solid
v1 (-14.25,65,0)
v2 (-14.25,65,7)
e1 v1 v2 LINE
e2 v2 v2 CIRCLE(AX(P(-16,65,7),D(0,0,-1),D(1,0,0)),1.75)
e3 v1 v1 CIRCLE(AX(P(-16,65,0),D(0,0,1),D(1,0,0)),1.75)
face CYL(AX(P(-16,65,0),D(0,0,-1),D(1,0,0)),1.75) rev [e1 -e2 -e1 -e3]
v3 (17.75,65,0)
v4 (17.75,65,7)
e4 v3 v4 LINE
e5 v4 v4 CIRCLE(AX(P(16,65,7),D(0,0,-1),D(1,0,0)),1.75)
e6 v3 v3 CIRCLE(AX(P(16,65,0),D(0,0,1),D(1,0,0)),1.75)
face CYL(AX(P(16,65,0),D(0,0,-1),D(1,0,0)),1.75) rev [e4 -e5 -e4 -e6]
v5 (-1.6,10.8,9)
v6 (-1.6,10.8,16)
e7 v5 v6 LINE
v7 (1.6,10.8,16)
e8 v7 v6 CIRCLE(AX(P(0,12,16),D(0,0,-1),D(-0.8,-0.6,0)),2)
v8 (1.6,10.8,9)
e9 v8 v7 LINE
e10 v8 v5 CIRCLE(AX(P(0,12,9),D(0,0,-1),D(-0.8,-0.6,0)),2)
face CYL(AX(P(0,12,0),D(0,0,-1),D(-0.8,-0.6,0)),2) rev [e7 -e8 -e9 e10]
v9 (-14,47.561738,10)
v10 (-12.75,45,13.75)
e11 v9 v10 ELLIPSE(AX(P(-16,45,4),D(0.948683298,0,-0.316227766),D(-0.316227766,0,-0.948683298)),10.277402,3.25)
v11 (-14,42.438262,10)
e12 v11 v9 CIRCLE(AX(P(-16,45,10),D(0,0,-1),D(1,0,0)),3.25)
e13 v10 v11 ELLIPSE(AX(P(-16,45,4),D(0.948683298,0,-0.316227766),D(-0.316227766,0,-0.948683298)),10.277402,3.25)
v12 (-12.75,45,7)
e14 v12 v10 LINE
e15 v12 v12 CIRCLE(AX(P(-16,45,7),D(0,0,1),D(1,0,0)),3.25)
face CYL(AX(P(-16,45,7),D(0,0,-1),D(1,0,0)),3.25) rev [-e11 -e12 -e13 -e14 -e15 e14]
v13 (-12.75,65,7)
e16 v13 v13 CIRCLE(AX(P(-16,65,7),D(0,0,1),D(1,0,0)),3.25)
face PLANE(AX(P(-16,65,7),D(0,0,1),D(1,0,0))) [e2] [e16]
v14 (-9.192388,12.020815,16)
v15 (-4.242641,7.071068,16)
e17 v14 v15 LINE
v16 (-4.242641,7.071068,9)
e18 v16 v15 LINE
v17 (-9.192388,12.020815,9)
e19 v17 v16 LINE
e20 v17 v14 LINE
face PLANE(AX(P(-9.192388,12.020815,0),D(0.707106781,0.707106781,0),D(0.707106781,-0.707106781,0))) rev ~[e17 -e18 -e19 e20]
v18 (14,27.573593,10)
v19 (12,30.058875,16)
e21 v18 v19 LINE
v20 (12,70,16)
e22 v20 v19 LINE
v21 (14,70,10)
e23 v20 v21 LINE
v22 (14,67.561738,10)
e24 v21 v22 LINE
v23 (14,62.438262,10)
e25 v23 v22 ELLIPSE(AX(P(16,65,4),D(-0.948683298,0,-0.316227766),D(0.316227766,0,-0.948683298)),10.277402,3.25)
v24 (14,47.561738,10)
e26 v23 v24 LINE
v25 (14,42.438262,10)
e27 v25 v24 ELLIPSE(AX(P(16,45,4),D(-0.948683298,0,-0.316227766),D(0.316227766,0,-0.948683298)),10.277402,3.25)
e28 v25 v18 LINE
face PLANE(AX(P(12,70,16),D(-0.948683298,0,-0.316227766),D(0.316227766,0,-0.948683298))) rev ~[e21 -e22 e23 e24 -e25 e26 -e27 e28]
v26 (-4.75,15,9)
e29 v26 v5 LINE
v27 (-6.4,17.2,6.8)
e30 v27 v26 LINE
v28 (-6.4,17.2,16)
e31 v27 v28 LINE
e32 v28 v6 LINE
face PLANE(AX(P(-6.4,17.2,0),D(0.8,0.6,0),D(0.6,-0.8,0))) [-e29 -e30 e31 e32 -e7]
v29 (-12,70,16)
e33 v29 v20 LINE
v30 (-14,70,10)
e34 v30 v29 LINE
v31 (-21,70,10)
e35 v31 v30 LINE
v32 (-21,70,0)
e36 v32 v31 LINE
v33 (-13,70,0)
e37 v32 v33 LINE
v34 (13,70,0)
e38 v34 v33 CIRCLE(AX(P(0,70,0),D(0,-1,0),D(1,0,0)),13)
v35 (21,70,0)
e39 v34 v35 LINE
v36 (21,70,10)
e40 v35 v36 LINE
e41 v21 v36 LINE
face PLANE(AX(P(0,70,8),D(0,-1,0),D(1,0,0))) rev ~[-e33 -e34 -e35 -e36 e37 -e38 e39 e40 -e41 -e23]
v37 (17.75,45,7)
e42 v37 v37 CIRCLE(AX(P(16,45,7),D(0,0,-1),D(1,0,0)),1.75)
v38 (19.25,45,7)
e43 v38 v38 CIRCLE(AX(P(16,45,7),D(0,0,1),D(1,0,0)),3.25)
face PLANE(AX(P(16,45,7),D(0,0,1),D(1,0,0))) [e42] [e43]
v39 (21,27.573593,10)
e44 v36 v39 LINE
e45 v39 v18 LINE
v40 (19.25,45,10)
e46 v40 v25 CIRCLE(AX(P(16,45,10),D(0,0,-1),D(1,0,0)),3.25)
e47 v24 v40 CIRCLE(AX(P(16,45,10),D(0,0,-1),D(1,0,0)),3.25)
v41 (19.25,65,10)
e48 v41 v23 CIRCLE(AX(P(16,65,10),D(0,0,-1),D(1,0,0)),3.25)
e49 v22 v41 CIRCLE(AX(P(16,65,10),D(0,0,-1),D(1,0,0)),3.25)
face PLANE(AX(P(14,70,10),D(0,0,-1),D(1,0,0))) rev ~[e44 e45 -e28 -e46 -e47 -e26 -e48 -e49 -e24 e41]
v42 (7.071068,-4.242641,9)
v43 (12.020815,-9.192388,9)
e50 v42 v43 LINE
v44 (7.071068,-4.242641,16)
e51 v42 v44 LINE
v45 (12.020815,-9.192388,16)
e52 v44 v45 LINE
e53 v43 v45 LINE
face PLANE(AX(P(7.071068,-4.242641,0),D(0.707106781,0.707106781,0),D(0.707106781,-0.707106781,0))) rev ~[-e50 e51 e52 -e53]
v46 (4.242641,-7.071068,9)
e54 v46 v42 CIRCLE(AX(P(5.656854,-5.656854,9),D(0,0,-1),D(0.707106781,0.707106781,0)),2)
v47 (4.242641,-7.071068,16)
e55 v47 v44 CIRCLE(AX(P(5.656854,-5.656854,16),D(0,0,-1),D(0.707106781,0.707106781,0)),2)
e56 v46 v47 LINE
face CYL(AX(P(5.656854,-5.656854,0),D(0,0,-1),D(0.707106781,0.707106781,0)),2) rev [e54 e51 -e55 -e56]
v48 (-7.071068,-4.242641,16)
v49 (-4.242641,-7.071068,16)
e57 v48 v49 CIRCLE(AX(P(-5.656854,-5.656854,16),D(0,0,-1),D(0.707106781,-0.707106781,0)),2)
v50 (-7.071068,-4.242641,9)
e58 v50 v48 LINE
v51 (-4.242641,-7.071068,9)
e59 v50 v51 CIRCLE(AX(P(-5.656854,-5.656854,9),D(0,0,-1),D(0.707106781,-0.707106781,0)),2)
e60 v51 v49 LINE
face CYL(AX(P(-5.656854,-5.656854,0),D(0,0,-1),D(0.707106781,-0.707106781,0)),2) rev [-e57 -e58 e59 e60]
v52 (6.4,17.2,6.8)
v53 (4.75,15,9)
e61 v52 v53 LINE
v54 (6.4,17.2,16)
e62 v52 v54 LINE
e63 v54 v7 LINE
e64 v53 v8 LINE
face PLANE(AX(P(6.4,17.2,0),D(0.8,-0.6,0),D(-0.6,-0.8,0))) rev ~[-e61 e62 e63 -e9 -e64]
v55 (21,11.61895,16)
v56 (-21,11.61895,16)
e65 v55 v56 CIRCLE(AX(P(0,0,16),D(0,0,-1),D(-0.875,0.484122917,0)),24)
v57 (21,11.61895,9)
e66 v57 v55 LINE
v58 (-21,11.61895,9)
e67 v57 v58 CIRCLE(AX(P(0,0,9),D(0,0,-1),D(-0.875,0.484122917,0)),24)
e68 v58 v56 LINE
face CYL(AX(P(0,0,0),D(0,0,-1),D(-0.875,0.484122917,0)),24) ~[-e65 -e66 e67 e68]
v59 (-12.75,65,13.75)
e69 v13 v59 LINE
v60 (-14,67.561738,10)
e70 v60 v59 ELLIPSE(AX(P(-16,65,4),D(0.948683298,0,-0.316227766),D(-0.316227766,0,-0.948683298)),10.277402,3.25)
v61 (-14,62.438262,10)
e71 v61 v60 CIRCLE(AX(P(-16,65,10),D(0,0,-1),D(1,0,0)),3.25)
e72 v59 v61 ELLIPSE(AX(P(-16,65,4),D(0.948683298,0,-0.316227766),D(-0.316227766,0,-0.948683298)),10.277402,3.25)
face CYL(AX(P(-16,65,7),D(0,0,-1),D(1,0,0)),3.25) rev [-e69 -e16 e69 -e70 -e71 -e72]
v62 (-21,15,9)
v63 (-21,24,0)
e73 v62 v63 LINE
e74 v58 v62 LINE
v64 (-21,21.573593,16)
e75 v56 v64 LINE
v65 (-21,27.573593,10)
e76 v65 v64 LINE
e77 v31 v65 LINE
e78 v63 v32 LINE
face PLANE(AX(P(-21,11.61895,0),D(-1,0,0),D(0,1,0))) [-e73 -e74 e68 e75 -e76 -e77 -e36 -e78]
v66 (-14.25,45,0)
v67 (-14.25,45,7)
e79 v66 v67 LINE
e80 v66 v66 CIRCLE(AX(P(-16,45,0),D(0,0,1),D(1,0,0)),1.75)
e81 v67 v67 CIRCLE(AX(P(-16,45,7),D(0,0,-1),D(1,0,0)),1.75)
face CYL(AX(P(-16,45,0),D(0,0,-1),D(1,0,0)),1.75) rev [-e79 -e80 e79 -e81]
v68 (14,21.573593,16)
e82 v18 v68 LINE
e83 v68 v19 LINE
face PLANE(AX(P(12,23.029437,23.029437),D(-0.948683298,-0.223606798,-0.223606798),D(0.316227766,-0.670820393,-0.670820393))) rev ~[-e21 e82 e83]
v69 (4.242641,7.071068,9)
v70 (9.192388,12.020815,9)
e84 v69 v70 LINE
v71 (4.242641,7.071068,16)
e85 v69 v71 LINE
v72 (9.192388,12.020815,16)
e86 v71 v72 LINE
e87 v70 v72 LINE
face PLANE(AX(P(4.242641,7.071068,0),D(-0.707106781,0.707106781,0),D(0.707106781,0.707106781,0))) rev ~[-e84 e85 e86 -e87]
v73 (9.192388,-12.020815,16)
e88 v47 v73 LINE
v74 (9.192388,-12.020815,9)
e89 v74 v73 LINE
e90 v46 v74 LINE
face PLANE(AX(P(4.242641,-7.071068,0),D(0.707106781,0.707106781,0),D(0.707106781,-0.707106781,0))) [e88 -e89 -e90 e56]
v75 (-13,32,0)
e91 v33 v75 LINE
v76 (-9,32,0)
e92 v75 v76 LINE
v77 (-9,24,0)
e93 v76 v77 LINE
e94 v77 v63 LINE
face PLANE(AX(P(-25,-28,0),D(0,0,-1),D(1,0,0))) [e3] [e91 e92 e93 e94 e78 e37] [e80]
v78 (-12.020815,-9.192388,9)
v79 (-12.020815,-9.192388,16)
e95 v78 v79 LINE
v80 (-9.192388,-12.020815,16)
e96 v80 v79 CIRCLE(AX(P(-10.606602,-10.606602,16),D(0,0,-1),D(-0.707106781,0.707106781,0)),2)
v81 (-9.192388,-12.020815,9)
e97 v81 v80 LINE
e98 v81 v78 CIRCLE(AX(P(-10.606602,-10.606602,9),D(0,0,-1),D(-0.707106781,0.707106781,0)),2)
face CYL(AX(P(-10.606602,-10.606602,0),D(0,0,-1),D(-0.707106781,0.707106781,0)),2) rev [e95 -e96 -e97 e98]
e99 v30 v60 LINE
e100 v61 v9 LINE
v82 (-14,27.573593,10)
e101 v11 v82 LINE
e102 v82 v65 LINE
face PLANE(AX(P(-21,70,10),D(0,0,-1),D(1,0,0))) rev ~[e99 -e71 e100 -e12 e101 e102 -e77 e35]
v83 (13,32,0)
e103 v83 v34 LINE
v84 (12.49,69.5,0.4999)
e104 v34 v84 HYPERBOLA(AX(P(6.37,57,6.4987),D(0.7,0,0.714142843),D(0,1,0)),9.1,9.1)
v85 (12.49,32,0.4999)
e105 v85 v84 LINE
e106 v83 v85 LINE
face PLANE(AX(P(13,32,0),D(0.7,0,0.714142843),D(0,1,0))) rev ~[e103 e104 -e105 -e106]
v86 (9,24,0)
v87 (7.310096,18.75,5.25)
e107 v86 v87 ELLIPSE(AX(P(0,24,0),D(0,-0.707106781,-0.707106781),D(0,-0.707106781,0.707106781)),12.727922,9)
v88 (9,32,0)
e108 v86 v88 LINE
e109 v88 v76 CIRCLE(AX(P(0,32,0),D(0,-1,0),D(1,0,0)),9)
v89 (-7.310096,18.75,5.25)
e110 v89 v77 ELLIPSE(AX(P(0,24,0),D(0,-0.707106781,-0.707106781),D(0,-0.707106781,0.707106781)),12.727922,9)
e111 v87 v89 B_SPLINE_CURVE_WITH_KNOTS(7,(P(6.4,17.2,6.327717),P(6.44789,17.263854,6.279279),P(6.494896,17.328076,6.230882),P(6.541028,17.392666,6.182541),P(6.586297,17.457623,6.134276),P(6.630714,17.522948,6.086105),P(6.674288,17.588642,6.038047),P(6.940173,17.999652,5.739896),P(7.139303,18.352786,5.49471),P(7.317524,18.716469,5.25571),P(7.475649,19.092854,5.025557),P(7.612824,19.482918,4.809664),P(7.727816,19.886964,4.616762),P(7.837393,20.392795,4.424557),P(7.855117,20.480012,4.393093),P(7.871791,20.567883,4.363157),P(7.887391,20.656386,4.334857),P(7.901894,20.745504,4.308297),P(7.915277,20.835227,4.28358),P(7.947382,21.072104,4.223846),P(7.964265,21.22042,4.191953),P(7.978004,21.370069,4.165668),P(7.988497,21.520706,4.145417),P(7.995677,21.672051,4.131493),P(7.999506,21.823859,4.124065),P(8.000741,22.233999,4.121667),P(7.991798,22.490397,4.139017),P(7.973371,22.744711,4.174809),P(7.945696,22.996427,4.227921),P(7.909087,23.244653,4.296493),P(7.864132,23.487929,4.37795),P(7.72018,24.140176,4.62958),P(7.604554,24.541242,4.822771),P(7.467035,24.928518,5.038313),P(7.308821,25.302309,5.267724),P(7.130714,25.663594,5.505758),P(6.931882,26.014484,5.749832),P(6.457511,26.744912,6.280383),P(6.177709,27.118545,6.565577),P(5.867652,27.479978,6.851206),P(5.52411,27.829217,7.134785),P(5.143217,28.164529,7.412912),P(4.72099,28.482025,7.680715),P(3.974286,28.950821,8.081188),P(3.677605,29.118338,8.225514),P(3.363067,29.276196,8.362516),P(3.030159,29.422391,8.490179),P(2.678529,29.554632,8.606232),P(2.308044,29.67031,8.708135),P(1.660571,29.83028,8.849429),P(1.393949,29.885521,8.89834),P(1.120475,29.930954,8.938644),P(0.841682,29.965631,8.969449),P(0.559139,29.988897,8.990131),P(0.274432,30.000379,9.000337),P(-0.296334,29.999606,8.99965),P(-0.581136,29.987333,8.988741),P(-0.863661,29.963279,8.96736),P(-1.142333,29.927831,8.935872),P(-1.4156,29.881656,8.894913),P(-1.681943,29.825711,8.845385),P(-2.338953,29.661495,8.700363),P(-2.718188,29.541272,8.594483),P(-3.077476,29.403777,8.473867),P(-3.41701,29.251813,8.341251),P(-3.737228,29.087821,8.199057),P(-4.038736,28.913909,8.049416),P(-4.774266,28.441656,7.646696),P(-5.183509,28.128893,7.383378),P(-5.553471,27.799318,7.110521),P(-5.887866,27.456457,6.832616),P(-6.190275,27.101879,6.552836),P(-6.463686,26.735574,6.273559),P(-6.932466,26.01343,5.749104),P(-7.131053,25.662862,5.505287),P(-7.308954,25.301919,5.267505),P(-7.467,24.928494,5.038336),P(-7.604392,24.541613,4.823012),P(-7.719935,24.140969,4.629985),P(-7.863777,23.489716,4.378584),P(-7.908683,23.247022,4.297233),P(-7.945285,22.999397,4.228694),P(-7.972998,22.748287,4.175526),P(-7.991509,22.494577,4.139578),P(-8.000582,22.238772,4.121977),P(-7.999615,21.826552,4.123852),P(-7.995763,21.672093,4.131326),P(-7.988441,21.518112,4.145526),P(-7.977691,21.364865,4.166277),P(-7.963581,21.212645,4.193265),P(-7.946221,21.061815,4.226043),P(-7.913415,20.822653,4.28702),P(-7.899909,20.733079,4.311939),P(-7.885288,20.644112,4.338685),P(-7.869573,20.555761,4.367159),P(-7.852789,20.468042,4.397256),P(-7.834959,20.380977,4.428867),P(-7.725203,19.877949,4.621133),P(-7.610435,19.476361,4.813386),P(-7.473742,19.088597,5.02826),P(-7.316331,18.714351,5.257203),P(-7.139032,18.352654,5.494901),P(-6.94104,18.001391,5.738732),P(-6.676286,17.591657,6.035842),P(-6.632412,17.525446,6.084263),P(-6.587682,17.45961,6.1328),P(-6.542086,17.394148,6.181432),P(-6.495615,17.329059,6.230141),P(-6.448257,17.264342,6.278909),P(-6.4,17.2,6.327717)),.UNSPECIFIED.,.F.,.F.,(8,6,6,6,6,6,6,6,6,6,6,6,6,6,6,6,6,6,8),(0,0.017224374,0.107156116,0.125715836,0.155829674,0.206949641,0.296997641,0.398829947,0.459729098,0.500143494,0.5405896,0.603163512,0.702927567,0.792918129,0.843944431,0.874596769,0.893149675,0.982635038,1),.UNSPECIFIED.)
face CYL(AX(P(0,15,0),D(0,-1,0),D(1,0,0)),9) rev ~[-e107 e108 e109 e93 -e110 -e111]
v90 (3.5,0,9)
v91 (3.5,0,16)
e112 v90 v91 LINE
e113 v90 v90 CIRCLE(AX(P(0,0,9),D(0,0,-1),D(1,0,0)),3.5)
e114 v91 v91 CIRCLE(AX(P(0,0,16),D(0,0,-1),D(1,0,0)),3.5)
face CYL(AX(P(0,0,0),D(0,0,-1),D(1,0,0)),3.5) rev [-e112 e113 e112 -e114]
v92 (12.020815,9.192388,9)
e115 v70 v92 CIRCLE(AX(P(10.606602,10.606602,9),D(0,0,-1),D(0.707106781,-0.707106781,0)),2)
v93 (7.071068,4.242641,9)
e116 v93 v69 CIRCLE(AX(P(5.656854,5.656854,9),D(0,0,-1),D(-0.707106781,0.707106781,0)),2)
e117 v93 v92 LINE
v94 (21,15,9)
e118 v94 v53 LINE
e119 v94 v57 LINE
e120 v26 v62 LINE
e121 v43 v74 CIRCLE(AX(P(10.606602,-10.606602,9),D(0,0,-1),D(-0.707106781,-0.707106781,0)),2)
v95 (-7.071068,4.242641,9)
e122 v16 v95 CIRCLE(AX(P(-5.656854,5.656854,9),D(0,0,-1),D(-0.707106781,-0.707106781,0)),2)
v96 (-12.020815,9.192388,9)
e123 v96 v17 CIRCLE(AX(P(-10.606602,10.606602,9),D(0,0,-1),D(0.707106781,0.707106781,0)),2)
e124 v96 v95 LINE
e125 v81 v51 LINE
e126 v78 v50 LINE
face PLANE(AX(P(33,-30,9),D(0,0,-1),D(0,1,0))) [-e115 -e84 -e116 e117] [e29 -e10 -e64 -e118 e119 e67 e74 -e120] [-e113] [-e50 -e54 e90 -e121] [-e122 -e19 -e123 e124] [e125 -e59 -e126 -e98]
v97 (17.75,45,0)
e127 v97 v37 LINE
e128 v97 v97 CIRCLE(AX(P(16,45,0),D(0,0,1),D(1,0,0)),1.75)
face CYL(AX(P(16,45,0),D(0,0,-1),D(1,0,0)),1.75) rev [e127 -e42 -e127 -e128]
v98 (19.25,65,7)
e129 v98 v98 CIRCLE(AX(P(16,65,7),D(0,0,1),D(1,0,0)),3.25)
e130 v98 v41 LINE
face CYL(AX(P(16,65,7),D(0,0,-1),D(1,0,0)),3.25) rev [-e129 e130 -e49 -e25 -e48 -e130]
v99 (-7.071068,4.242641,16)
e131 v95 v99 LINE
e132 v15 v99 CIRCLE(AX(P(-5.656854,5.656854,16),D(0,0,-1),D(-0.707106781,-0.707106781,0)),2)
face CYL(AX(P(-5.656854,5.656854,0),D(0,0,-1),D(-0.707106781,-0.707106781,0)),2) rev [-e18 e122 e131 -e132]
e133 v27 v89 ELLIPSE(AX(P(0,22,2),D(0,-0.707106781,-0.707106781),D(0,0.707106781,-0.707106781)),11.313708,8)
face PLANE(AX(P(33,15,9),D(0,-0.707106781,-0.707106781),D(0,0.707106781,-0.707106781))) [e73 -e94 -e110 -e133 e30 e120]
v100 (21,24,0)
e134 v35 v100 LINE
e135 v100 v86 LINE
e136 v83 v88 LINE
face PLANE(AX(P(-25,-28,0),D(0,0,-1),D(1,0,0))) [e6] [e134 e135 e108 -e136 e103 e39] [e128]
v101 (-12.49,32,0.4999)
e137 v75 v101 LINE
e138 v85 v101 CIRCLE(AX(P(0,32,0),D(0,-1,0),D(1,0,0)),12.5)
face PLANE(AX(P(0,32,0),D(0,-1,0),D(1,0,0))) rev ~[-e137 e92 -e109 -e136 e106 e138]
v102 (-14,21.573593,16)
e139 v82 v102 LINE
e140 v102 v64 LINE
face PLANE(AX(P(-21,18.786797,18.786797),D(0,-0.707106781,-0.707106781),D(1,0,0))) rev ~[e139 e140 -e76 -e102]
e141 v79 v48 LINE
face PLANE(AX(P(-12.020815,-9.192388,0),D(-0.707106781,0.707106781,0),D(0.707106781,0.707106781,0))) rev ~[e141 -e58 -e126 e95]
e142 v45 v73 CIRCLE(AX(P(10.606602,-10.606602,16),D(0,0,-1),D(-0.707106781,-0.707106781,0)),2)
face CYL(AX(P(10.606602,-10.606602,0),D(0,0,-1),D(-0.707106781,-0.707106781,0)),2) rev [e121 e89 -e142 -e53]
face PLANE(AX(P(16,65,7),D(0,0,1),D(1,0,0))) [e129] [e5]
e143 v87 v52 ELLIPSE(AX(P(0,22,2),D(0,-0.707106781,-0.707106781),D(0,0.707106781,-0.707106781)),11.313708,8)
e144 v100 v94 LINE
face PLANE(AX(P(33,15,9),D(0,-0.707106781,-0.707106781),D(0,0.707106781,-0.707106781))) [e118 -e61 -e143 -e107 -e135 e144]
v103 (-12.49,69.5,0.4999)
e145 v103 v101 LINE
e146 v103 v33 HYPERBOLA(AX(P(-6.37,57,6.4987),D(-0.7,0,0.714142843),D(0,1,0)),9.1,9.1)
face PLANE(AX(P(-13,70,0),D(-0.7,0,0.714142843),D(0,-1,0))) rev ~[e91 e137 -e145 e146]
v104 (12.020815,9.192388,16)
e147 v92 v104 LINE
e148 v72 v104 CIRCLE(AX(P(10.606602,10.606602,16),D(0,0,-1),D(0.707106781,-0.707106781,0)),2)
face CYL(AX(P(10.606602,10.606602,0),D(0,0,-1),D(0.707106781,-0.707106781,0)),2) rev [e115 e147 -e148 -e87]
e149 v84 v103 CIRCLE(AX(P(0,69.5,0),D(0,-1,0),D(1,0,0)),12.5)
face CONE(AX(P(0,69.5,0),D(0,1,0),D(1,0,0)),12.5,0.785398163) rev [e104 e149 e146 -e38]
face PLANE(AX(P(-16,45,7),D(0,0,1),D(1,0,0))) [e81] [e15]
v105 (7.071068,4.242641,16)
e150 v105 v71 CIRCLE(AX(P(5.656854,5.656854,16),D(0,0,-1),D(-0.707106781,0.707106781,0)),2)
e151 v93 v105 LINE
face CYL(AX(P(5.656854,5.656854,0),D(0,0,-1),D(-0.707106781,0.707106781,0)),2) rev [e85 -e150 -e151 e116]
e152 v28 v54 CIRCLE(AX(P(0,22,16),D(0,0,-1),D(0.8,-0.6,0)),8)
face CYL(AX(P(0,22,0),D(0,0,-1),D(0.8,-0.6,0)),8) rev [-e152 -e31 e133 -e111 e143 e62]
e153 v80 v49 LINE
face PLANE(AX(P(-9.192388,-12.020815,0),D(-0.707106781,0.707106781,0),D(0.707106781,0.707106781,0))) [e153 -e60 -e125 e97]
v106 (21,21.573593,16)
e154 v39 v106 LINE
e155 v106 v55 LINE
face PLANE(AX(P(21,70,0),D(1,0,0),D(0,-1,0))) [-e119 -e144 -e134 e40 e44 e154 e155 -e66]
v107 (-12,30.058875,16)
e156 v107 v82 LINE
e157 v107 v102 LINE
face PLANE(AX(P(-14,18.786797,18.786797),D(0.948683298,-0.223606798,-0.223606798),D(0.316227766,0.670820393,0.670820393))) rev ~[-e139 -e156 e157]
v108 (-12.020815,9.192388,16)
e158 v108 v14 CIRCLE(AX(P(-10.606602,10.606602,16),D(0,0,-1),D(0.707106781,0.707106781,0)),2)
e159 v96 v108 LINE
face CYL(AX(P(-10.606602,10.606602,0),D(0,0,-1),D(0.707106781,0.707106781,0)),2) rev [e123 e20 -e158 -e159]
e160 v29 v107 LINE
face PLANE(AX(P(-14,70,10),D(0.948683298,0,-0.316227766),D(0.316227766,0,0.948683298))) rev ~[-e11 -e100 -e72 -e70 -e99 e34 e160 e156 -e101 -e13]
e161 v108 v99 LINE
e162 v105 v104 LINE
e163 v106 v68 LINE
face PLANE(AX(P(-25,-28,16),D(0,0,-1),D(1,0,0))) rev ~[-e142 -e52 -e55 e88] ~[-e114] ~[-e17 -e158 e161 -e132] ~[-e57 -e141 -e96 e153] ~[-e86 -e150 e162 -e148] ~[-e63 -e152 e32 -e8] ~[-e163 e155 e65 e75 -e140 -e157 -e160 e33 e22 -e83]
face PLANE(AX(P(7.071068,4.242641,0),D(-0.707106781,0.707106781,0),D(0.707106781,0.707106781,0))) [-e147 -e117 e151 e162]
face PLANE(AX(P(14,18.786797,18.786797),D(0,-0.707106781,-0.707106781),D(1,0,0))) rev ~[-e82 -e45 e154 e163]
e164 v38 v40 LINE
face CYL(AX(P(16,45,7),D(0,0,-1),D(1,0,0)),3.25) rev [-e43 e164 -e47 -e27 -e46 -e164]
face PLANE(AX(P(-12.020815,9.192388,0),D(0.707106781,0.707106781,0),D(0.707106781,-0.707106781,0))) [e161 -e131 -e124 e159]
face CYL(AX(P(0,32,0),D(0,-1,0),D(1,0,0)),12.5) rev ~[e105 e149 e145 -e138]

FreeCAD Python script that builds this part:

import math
import FreeCAD as App
import Part
import Sketcher
Q = App.Units.Quantity


def edges_at(feature, points):
    """Names of the edges that pass closest to the given points."""
    edges = feature.Shape.Edges
    near = lambda p: min(range(len(edges)), key=lambda i: edges[i].distToShape(Part.Vertex(*p))[0])
    return sorted({f"Edge{near(p) + 1}" for p in points})

doc = App.newDocument("Part")
body = doc.addObject("PartDesign::Body", "Body")
body.AllowCompound = True

# Sketch on XY plane
sketch1 = body.newObject("Sketcher::SketchObject", "Sketch")
sketch1.AttachmentSupport = (doc.getObject("XY_Plane"), [""])
sketch1.MapMode = "FlatFace"
sketch1.addGeometry(Part.Circle(App.Vector(-16, 45, 0), App.Vector(0, 0, 1), 3.2), False)
sketch1.addGeometry(Part.Circle(App.Vector(16, 45, 0), App.Vector(0, 0, 1), 3.2), False)
sketch1.addGeometry(Part.Circle(App.Vector(-16, 65, 0), App.Vector(0, 0, 1), 3.2), False)
sketch1.addGeometry(Part.Circle(App.Vector(16, 65, 0), App.Vector(0, 0, 1), 3.2), False)
sketch1.addConstraint(Sketcher.Constraint("Equal", 0, 1))
sketch1.addConstraint(Sketcher.Constraint("Equal", 1, 2))
sketch1.addConstraint(Sketcher.Constraint("Equal", 2, 3))
sketch1.addConstraint(Sketcher.Constraint("Symmetric", 0, 3, 1, 3, -2))
sketch1.addConstraint(Sketcher.Constraint("Symmetric", 2, 3, 3, 3, -2))
sketch1.addConstraint(Sketcher.Constraint("Vertical", 0, 3, 2, 3))
sketch1.addConstraint(Sketcher.Constraint("Diameter", 0, 6.5))
sketch1.addConstraint(Sketcher.Constraint("DistanceX", 0, 3, -1, 1, 16.0))
sketch1.addConstraint(Sketcher.Constraint("DistanceY", -1, 1, 0, 3, 45.0))
sketch1.addConstraint(Sketcher.Constraint("DistanceY", -1, 1, 2, 3, 65.0))
pad1 = body.newObject("PartDesign::Pad", "Pad")
pad1.Profile = sketch1
pad1.Length = 10
body2 = doc.addObject("PartDesign::Body", "Body001")
body2.AllowCompound = True
doc.recompute()

body.Placement = App.Placement(App.Vector(0, 0, 7), App.Rotation(App.Vector(0, 0, 1), 0))
boolean = body2.newObject("PartDesign::Boolean", "Boolean")
boolean.Type = "Fuse"
boolean.addObjects([body])
body3 = doc.addObject("PartDesign::Body", "Body002")

# Sketch on XY plane
sketch2 = body3.newObject("Sketcher::SketchObject", "Sketch001")
sketch2.AttachmentSupport = (doc.getObject("XY_Plane002"), [""])
sketch2.MapMode = "FlatFace"
sketch2.addGeometry(Part.Circle(App.Vector(0, 0, 0), App.Vector(0, 0, 1), 9), False)
sketch2.addConstraint(Sketcher.Constraint("Coincident", 0, 3, -1, 1))
sketch2.addConstraint(Sketcher.Constraint("Diameter", 0, 18.0))
pad2 = body3.newObject("PartDesign::Pad", "Pad001")
pad2.Profile = sketch2
pad2.Length = 27
pad2.Reversed = True
body4 = doc.addObject("PartDesign::Body", "Body003")
doc.recompute()

body3.Placement = App.Placement(App.Vector(0, 0, 0), App.Rotation(App.Vector(1, 0, 0), 90))
boolean2 = body4.newObject("PartDesign::Boolean", "Boolean001")
boolean2.Type = "Fuse"
boolean2.addObjects([body3])
body5 = doc.addObject("PartDesign::Body", "Body004")
doc.recompute()

body4.Placement = App.Placement(App.Vector(0, 33, 0), App.Rotation(App.Vector(0, 0, 1), 0))
boolean3 = body5.newObject("PartDesign::Boolean", "Boolean002")
boolean3.Type = "Fuse"
boolean3.addObjects([body4])
body6 = doc.addObject("PartDesign::Body", "Body005")
doc.recompute()

body5.Placement = App.Placement(App.Vector(0, -18, 0), App.Rotation(App.Vector(0, 0, 1), 0))
boolean4 = body6.newObject("PartDesign::Boolean", "Boolean003")
boolean4.Type = "Fuse"
boolean4.addObjects([body5])
body7 = doc.addObject("PartDesign::Body", "Body006")

# Sketch on XZ plane
sketch3 = body7.newObject("Sketcher::SketchObject", "Sketch002")
sketch3.AttachmentSupport = (doc.getObject("XZ_Plane006"), [""])
sketch3.MapMode = "FlatFace"
sketch3.AttachmentOffset = App.Placement(App.Vector(0, 0, -70), App.Rotation())
sketch3.addGeometry(Part.LineSegment(App.Vector(-12, 16, 0), App.Vector(12, 16, 0)), False)
sketch3.addGeometry(Part.LineSegment(App.Vector(12, 16, 0), App.Vector(14, 10, 0)), False)
sketch3.addGeometry(Part.LineSegment(App.Vector(14, 10, 0), App.Vector(21, 10, 0)), False)
sketch3.addGeometry(Part.LineSegment(App.Vector(21, 10, 0), App.Vector(21, 28, 0)), False)
sketch3.addGeometry(Part.LineSegment(App.Vector(21, 28, 0), App.Vector(-21, 28, 0)), False)
sketch3.addGeometry(Part.LineSegment(App.Vector(-21, 28, 0), App.Vector(-21, 10, 0)), False)
sketch3.addGeometry(Part.LineSegment(App.Vector(-21, 10, 0), App.Vector(-14, 10, 0)), False)
sketch3.addGeometry(Part.LineSegment(App.Vector(-14, 10, 0), App.Vector(-12, 16, 0)), False)
sketch3.addConstraint(Sketcher.Constraint("Coincident", 0, 2, 1, 1))
sketch3.addConstraint(Sketcher.Constraint("Coincident", 1, 2, 2, 1))
sketch3.addConstraint(Sketcher.Constraint("Coincident", 2, 2, 3, 1))
sketch3.addConstraint(Sketcher.Constraint("Coincident", 3, 2, 4, 1))
sketch3.addConstraint(Sketcher.Constraint("Coincident", 4, 2, 5, 1))
sketch3.addConstraint(Sketcher.Constraint("Coincident", 5, 2, 6, 1))
sketch3.addConstraint(Sketcher.Constraint("Coincident", 6, 2, 7, 1))
sketch3.addConstraint(Sketcher.Constraint("Coincident", 7, 2, 0, 1))
sketch3.addConstraint(Sketcher.Constraint("Horizontal", 0))
sketch3.addConstraint(Sketcher.Constraint("Horizontal", 2))
sketch3.addConstraint(Sketcher.Constraint("Vertical", 3))
sketch3.addConstraint(Sketcher.Constraint("Horizontal", 4))
sketch3.addConstraint(Sketcher.Constraint("Vertical", 5))
sketch3.addConstraint(Sketcher.Constraint("Horizontal", 6))
sketch3.addConstraint(Sketcher.Constraint("Symmetric", 2, 2, 5, 2, -2))
sketch3.addConstraint(Sketcher.Constraint("Equal", 2, 6))
sketch3.addConstraint(Sketcher.Constraint("Equal", 1, 7))
sketch3.addConstraint(Sketcher.Constraint("DistanceX", 0, 1, 0, 2, 24.0))
sketch3.addConstraint(Sketcher.Constraint("DistanceX", 2, 1, 2, 2, 7.0))
sketch3.addConstraint(Sketcher.Constraint("DistanceX", 4, 2, 4, 1, 42.0))
sketch3.addConstraint(Sketcher.Constraint("DistanceY", 3, 1, 3, 2, 18.0))
sketch3.addConstraint(Sketcher.Constraint("DistanceY", -1, 1, 0, 2, 16.0))
sketch3.addConstraint(Sketcher.Constraint("DistanceY", -1, 1, 1, 2, 10.0))

# Sketch on YZ plane
sketch4 = body7.newObject("Sketcher::SketchObject", "Sketch003")
sketch4.AttachmentSupport = (doc.getObject("YZ_Plane006"), [""])
sketch4.MapMode = "FlatFace"
sketch4.addGeometry(Part.LineSegment(App.Vector(70, 40, 0), App.Vector(40, 40, 0)), False)
sketch4.addGeometry(Part.LineSegment(App.Vector(40, 40, 0), App.Vector(33, 47, 0)), False)
sketch4.addConstraint(Sketcher.Constraint("Coincident", 0, 2, 1, 1))
sketch4.addConstraint(Sketcher.Constraint("Horizontal", 0))
sketch4.addConstraint(Sketcher.Constraint("DistanceX", 0, 2, 0, 1, 30.0))
sketch4.addConstraint(Sketcher.Constraint("Angle", 1, Q("135 deg")))
sketch4.addConstraint(Sketcher.Constraint("Distance", 1, 10.0))
sketch4.addConstraint(Sketcher.Constraint("DistanceX", -1, 1, 0, 1, 70.0))
sketch4.addConstraint(Sketcher.Constraint("DistanceY", -1, 1, 0, 1, 40.0))
doc.recompute()

additivepipe = body7.newObject("PartDesign::AdditivePipe", "AdditivePipe")
additivepipe.Profile = sketch3
additivepipe.Spine = (sketch4, ["Edge1", "Edge2"])
additivepipe.Transition = "Right corner"
body8 = doc.addObject("PartDesign::Body", "Body007")
body8.AllowCompound = True

# Sketch on XY plane
sketch5 = body8.newObject("Sketcher::SketchObject", "Sketch004")
sketch5.AttachmentSupport = (doc.getObject("XY_Plane007"), [""])
sketch5.MapMode = "FlatFace"
sketch5.addGeometry(Part.Circle(App.Vector(0, 0, 0), App.Vector(0, 0, 1), 3.5), False)
sketch5.addGeometry(Part.Circle(App.Vector(-16, 45, 0), App.Vector(0, 0, 1), 1.8), False)
sketch5.addGeometry(Part.Circle(App.Vector(-16, 65, 0), App.Vector(0, 0, 1), 1.8), False)
sketch5.addGeometry(Part.Circle(App.Vector(16, 65, 0), App.Vector(0, 0, 1), 1.8), False)
sketch5.addGeometry(Part.Circle(App.Vector(16, 45, 0), App.Vector(0, 0, 1), 1.8), False)
sketch5.addGeometry(Part.ArcOfCircle(Part.Circle(App.Vector(-10.6, -10.6, 0), App.Vector(0, 0, 1), 2), math.radians(135), math.radians(315)), False)
sketch5.addGeometry(Part.LineSegment(App.Vector(-9.2, -12, 0), App.Vector(-4.2, -7.1, 0)), False)
sketch5.addGeometry(Part.ArcOfCircle(Part.Circle(App.Vector(-5.7, -5.7, 0), App.Vector(0, 0, 1), 2), math.radians(-45), math.radians(135)), False)
sketch5.addGeometry(Part.LineSegment(App.Vector(-7.1, -4.2, 0), App.Vector(-12, -9.2, 0)), False)
sketch5.addGeometry(Part.ArcOfCircle(Part.Circle(App.Vector(5.7, -5.7, 0), App.Vector(0, 0, 1), 2), math.radians(45), math.radians(225)), False)
sketch5.addGeometry(Part.LineSegment(App.Vector(4.2, -7.1, 0), App.Vector(9.2, -12, 0)), False)
sketch5.addGeometry(Part.ArcOfCircle(Part.Circle(App.Vector(10.6, -10.6, 0), App.Vector(0, 0, 1), 2), math.radians(-135), math.radians(45)), False)
sketch5.addGeometry(Part.LineSegment(App.Vector(12, -9.2, 0), App.Vector(7.1, -4.2, 0)), False)
sketch5.addGeometry(Part.ArcOfCircle(Part.Circle(App.Vector(5.7, 5.7, 0), App.Vector(0, 0, 1), 2), math.radians(135), math.radians(315)), False)
sketch5.addGeometry(Part.LineSegment(App.Vector(7.1, 4.2, 0), App.Vector(12, 9.2, 0)), False)
sketch5.addGeometry(Part.ArcOfCircle(Part.Circle(App.Vector(10.6, 10.6, 0), App.Vector(0, 0, 1), 2), math.radians(-45), math.radians(135)), False)
sketch5.addGeometry(Part.LineSegment(App.Vector(9.2, 12, 0), App.Vector(4.2, 7.1, 0)), False)
sketch5.addGeometry(Part.ArcOfCircle(Part.Circle(App.Vector(-10.6, 10.6, 0), App.Vector(0, 0, 1), 2), math.radians(45), math.radians(225)), False)
sketch5.addGeometry(Part.LineSegment(App.Vector(-12, 9.2, 0), App.Vector(-7.1, 4.2, 0)), False)
sketch5.addGeometry(Part.ArcOfCircle(Part.Circle(App.Vector(-5.7, 5.7, 0), App.Vector(0, 0, 1), 2), math.radians(-135), math.radians(45)), False)
sketch5.addGeometry(Part.LineSegment(App.Vector(-4.2, 7.1, 0), App.Vector(-9.2, 12, 0)), False)
sketch5.addGeometry(Part.ArcOfCircle(Part.Circle(App.Vector(0, 22, 0), App.Vector(0, 0, 1), 8), math.radians(-37), math.radians(217)), False)
sketch5.addGeometry(Part.LineSegment(App.Vector(-6.4, 17.2, 0), App.Vector(-1.6, 10.8, 0)), False)
sketch5.addGeometry(Part.ArcOfCircle(Part.Circle(App.Vector(0, 12, 0), App.Vector(0, 0, 1), 2), math.radians(-143), math.radians(-37)), False)
sketch5.addGeometry(Part.LineSegment(App.Vector(1.6, 10.8, 0), App.Vector(6.4, 17.2, 0)), False)
sketch5.addGeometry(Part.ArcOfCircle(Part.Circle(App.Vector(0, 0, 0), App.Vector(0, 0, 1), 24), math.radians(151), math.radians(389)), False)
sketch5.addGeometry(Part.LineSegment(App.Vector(-21, 11.6, 0), App.Vector(-21, 70, 0)), False)
sketch5.addGeometry(Part.LineSegment(App.Vector(-21, 70, 0), App.Vector(-30, 70, 0)), False)
sketch5.addGeometry(Part.LineSegment(App.Vector(-30, 70, 0), App.Vector(-30, -30, 0)), False)
sketch5.addGeometry(Part.LineSegment(App.Vector(-30, -30, 0), App.Vector(30, -30, 0)), False)
sketch5.addGeometry(Part.LineSegment(App.Vector(30, -30, 0), App.Vector(30, 70, 0)), False)
sketch5.addGeometry(Part.LineSegment(App.Vector(30, 70, 0), App.Vector(21, 70, 0)), False)
sketch5.addGeometry(Part.LineSegment(App.Vector(21, 70, 0), App.Vector(21, 11.6, 0)), False)
sketch5.addConstraint(Sketcher.Constraint("Tangent", 5, 2, 6, 1))
sketch5.addConstraint(Sketcher.Constraint("Tangent", 6, 2, 7, 1))
sketch5.addConstraint(Sketcher.Constraint("Tangent", 7, 2, 8, 1))
sketch5.addConstraint(Sketcher.Constraint("Tangent", 8, 2, 5, 1))
sketch5.addConstraint(Sketcher.Constraint("Tangent", 9, 2, 10, 1))
sketch5.addConstraint(Sketcher.Constraint("Tangent", 10, 2, 11, 1))
sketch5.addConstraint(Sketcher.Constraint("Tangent", 11, 2, 12, 1))
sketch5.addConstraint(Sketcher.Constraint("Tangent", 12, 2, 9, 1))
sketch5.addConstraint(Sketcher.Constraint("Tangent", 13, 2, 14, 1))
sketch5.addConstraint(Sketcher.Constraint("Tangent", 14, 2, 15, 1))
sketch5.addConstraint(Sketcher.Constraint("Tangent", 15, 2, 16, 1))
sketch5.addConstraint(Sketcher.Constraint("Tangent", 16, 2, 13, 1))
sketch5.addConstraint(Sketcher.Constraint("Tangent", 17, 2, 18, 1))
sketch5.addConstraint(Sketcher.Constraint("Tangent", 18, 2, 19, 1))
sketch5.addConstraint(Sketcher.Constraint("Tangent", 19, 2, 20, 1))
sketch5.addConstraint(Sketcher.Constraint("Tangent", 20, 2, 17, 1))
sketch5.addConstraint(Sketcher.Constraint("Tangent", 21, 2, 22, 1))
sketch5.addConstraint(Sketcher.Constraint("Tangent", 22, 2, 23, 1))
sketch5.addConstraint(Sketcher.Constraint("Tangent", 23, 2, 24, 1))
sketch5.addConstraint(Sketcher.Constraint("Tangent", 24, 2, 21, 1))
sketch5.addConstraint(Sketcher.Constraint("Coincident", 25, 1, 26, 1))
sketch5.addConstraint(Sketcher.Constraint("Coincident", 26, 2, 27, 1))
sketch5.addConstraint(Sketcher.Constraint("Coincident", 27, 2, 28, 1))
sketch5.addConstraint(Sketcher.Constraint("Coincident", 28, 2, 29, 1))
sketch5.addConstraint(Sketcher.Constraint("Coincident", 29, 2, 30, 1))
sketch5.addConstraint(Sketcher.Constraint("Coincident", 30, 2, 31, 1))
sketch5.addConstraint(Sketcher.Constraint("Coincident", 31, 2, 32, 1))
sketch5.addConstraint(Sketcher.Constraint("Coincident", 32, 2, 25, 2))
sketch5.addConstraint(Sketcher.Constraint("Vertical", 26))
sketch5.addConstraint(Sketcher.Constraint("Horizontal", 27))
sketch5.addConstraint(Sketcher.Constraint("Vertical", 28))
sketch5.addConstraint(Sketcher.Constraint("Horizontal", 29))
sketch5.addConstraint(Sketcher.Constraint("Vertical", 30))
sketch5.addConstraint(Sketcher.Constraint("Horizontal", 31))
sketch5.addConstraint(Sketcher.Constraint("Vertical", 32))
sketch5.addConstraint(Sketcher.Constraint("Coincident", 0, 3, -1, 1))
sketch5.addConstraint(Sketcher.Constraint("Coincident", 25, 3, -1, 1))
sketch5.addConstraint(Sketcher.Constraint("Equal", 1, 2))
sketch5.addConstraint(Sketcher.Constraint("Equal", 2, 3))
sketch5.addConstraint(Sketcher.Constraint("Equal", 3, 4))
sketch5.addConstraint(Sketcher.Constraint("Equal", 5, 7))
sketch5.addConstraint(Sketcher.Constraint("Equal", 7, 9))
sketch5.addConstraint(Sketcher.Constraint("Equal", 9, 11))
sketch5.addConstraint(Sketcher.Constraint("Equal", 11, 13))
sketch5.addConstraint(Sketcher.Constraint("Equal", 13, 15))
sketch5.addConstraint(Sketcher.Constraint("Equal", 15, 17))
sketch5.addConstraint(Sketcher.Constraint("Equal", 17, 19))
sketch5.addConstraint(Sketcher.Constraint("Equal", 19, 23))
sketch5.addConstraint(Sketcher.Constraint("Symmetric", 7, 3, 13, 3, -1, 1))
sketch5.addConstraint(Sketcher.Constraint("Symmetric", 5, 3, 15, 3, -1, 1))
sketch5.addConstraint(Sketcher.Constraint("Symmetric", 11, 3, 17, 3, -1, 1))
sketch5.addConstraint(Sketcher.Constraint("Symmetric", 9, 3, 19, 3, -1, 1))
sketch5.addConstraint(Sketcher.Constraint("Symmetric", 2, 3, 3, 3, -2))
sketch5.addConstraint(Sketcher.Constraint("Symmetric", 1, 3, 4, 3, -2))
sketch5.addConstraint(Sketcher.Constraint("Symmetric", 7, 3, 9, 3, -2))
sketch5.addConstraint(Sketcher.Constraint("Symmetric", 5, 3, 11, 3, -2))
sketch5.addConstraint(Sketcher.Constraint("Symmetric", 22, 2, 23, 2, -2))
sketch5.addConstraint(Sketcher.Constraint("Symmetric", 27, 2, 30, 2, -2))
sketch5.addConstraint(Sketcher.Constraint("Perpendicular", 8, 10))
sketch5.addConstraint(Sketcher.Constraint("Horizontal", 25, 1, 32, 2))
sketch5.addConstraint(Sketcher.Constraint("Vertical", 1, 3, 2, 3))
sketch5.addConstraint(Sketcher.Constraint("Diameter", 0, 7.0))
sketch5.addConstraint(Sketcher.Constraint("Radius", 5, 2.0))
sketch5.addConstraint(Sketcher.Constraint("Radius", 21, 8.0))
sketch5.addConstraint(Sketcher.Constraint("Radius", 25, 24.0))
sketch5.addConstraint(Sketcher.Constraint("Diameter", 1, 3.5))
sketch5.addConstraint(Sketcher.Constraint("DistanceX", 27, 2, 27, 1, 9.0))
sketch5.addConstraint(Sketcher.Constraint("DistanceX", 29, 1, 29, 2, 60.0))
sketch5.addConstraint(Sketcher.Constraint("DistanceY", 28, 2, 28, 1, 100.0))
sketch5.addConstraint(Sketcher.Constraint("Distance", 6, 6.999999))
sketch5.addConstraint(Sketcher.Constraint("Distance", 22, 8.0))
sketch5.addConstraint(Sketcher.Constraint("DistanceX", 1, 3, -1, 1, 16.0))
sketch5.addConstraint(Sketcher.Constraint("DistanceY", -1, 1, 1, 3, 45.0))
sketch5.addConstraint(Sketcher.Constraint("DistanceY", -1, 1, 2, 3, 65.0))
sketch5.addConstraint(Sketcher.Constraint("DistanceY", -1, 1, 21, 3, 22.0))
sketch5.addConstraint(Sketcher.Constraint("DistanceY", -1, 1, 26, 2, 70.0))
sketch5.addConstraint(Sketcher.Constraint("DistanceX", 5, 3, -1, 1, 10.606602))
sketch5.addConstraint(Sketcher.Constraint("DistanceY", 5, 3, -1, 1, 10.606602))
pad3 = body8.newObject("PartDesign::Pad", "Pad002")
pad3.Profile = sketch5
pad3.Length = 30
body9 = doc.addObject("PartDesign::Body", "Body008")

# Sketch on XY plane
sketch6 = body9.newObject("Sketcher::SketchObject", "Sketch005")
sketch6.AttachmentSupport = (doc.getObject("XY_Plane008"), [""])
sketch6.MapMode = "FlatFace"
sketch6.addGeometry(Part.Circle(App.Vector(0, 0, 0), App.Vector(0, 0, 1), 12), False)
sketch6.addConstraint(Sketcher.Constraint("Coincident", 0, 3, -1, 1))
sketch6.addConstraint(Sketcher.Constraint("Diameter", 0, 25.0))
pad4 = body9.newObject("PartDesign::Pad", "Pad003")
pad4.Profile = sketch6
pad4.Length = 50
pad4.Reversed = True
body10 = doc.addObject("PartDesign::Body", "Body009")
doc.recompute()

body9.Placement = App.Placement(App.Vector(0, 0, 0), App.Rotation(App.Vector(1, 0, 0), 90))
boolean5 = body10.newObject("PartDesign::Boolean", "Boolean004")
boolean5.Type = "Fuse"
boolean5.addObjects([body9])
body11 = doc.addObject("PartDesign::Body", "Body010")
doc.recompute()

body10.Placement = App.Placement(App.Vector(0, 32, 0), App.Rotation(App.Vector(0, 0, 1), 0))
boolean6 = body11.newObject("PartDesign::Boolean", "Boolean005")
boolean6.Type = "Fuse"
boolean6.addObjects([body10])
body12 = doc.addObject("PartDesign::Body", "Body011")

# Sketch on YZ plane
sketch7 = body12.newObject("Sketcher::SketchObject", "Sketch006")
sketch7.AttachmentSupport = (doc.getObject("YZ_Plane011"), [""])
sketch7.MapMode = "FlatFace"
sketch7.AttachmentOffset = App.Placement(App.Vector(0, 0, 33), App.Rotation())
sketch7.addGeometry(Part.LineSegment(App.Vector(15, 9, 0), App.Vector(-30, 9, 0)), False)
sketch7.addGeometry(Part.LineSegment(App.Vector(-30, 9, 0), App.Vector(-30, 0, 0)), False)
sketch7.addGeometry(Part.LineSegment(App.Vector(-30, 0, 0), App.Vector(24, 0, 0)), False)
sketch7.addGeometry(Part.LineSegment(App.Vector(24, 0, 0), App.Vector(15, 9, 0)), False)
sketch7.addConstraint(Sketcher.Constraint("Coincident", 0, 2, 1, 1))
sketch7.addConstraint(Sketcher.Constraint("Coincident", 1, 2, 2, 1))
sketch7.addConstraint(Sketcher.Constraint("Coincident", 2, 2, 3, 1))
sketch7.addConstraint(Sketcher.Constraint("Coincident", 3, 2, 0, 1))
sketch7.addConstraint(Sketcher.Constraint("Horizontal", 0))
sketch7.addConstraint(Sketcher.Constraint("Vertical", 1))
sketch7.addConstraint(Sketcher.Constraint("Horizontal", 2))
sketch7.addConstraint(Sketcher.Constraint("PointOnObject", 1, 2, -1))
sketch7.addConstraint(Sketcher.Constraint("DistanceX", 0, 2, 0, 1, 45.0))
sketch7.addConstraint(Sketcher.Constraint("DistanceX", 2, 1, 2, 2, 54.0))
sketch7.addConstraint(Sketcher.Constraint("DistanceY", 1, 2, 1, 1, 9.0))
sketch7.addConstraint(Sketcher.Constraint("DistanceX", 0, 2, -1, 1, 30.0))
pad5 = body12.newObject("PartDesign::Pad", "Pad004")
pad5.Profile = sketch7
pad5.Length = 60
pad5.Reversed = True
body13 = doc.addObject("PartDesign::Body", "Body012")

# Sketch on XY plane
sketch8 = body13.newObject("Sketcher::SketchObject", "Sketch007")
sketch8.AttachmentSupport = (doc.getObject("XY_Plane012"), [""])
sketch8.MapMode = "FlatFace"
sketch8.addGeometry(Part.LineSegment(App.Vector(-25, 16, 0), App.Vector(-25, 0, 0)), False)
sketch8.addGeometry(Part.LineSegment(App.Vector(-25, 0, 0), App.Vector(25, 0, 0)), False)
sketch8.addGeometry(Part.LineSegment(App.Vector(25, 0, 0), App.Vector(25, 16, 0)), False)
sketch8.addGeometry(Part.LineSegment(App.Vector(25, 16, 0), App.Vector(-25, 16, 0)), False)
sketch8.addConstraint(Sketcher.Constraint("Coincident", 0, 2, 1, 1))
sketch8.addConstraint(Sketcher.Constraint("Coincident", 1, 2, 2, 1))
sketch8.addConstraint(Sketcher.Constraint("Coincident", 2, 2, 3, 1))
sketch8.addConstraint(Sketcher.Constraint("Coincident", 3, 2, 0, 1))
sketch8.addConstraint(Sketcher.Constraint("Vertical", 0))
sketch8.addConstraint(Sketcher.Constraint("Horizontal", 1))
sketch8.addConstraint(Sketcher.Constraint("Vertical", 2))
sketch8.addConstraint(Sketcher.Constraint("Horizontal", 3))
sketch8.addConstraint(Sketcher.Constraint("Symmetric", 0, 2, 1, 2, -1, 1))
sketch8.addConstraint(Sketcher.Constraint("DistanceX", 1, 1, 1, 2, 50.0))
sketch8.addConstraint(Sketcher.Constraint("DistanceY", 0, 2, 0, 1, 16.0))
pad6 = body13.newObject("PartDesign::Pad", "Pad005")
pad6.Profile = sketch8
pad6.Length = 98
pad6.Reversed = True
body14 = doc.addObject("PartDesign::Body", "Body013")
doc.recompute()

body13.Placement = App.Placement(App.Vector(0, 0, 0), App.Rotation(App.Vector(1, 0, 0), 90))
boolean7 = body14.newObject("PartDesign::Boolean", "Boolean006")
boolean7.Type = "Fuse"
boolean7.addObjects([body13])
body15 = doc.addObject("PartDesign::Body", "Body014")
doc.recompute()

body14.Placement = App.Placement(App.Vector(0, -28, 0), App.Rotation(App.Vector(0, 0, 1), 0))
boolean8 = body15.newObject("PartDesign::Boolean", "Boolean007")
boolean8.Type = "Fuse"
boolean8.addObjects([body14])
doc.recompute()

boolean9 = body15.newObject("PartDesign::Boolean", "Boolean008")
boolean9.Type = "Cut"
boolean9.addObjects([body12])
doc.recompute()

boolean10 = body15.newObject("PartDesign::Boolean", "Boolean009")
boolean10.Type = "Cut"
boolean10.addObjects([body11])
doc.recompute()

boolean11 = body15.newObject("PartDesign::Boolean", "Boolean010")
boolean11.Type = "Cut"
boolean11.addObjects([body8])
doc.recompute()

boolean12 = body15.newObject("PartDesign::Boolean", "Boolean011")
boolean12.Type = "Cut"
boolean12.addObjects([body7])
doc.recompute()

boolean13 = body15.newObject("PartDesign::Boolean", "Boolean012")
boolean13.Type = "Cut"
boolean13.addObjects([body6])
doc.recompute()

boolean14 = body15.newObject("PartDesign::Boolean", "Boolean013")
boolean14.Type = "Cut"
boolean14.addObjects([body2])
doc.recompute()

chamfer = body15.newObject("PartDesign::Chamfer", "Chamfer")
chamfer.Base = (boolean14, edges_at(boolean14, [(12.5, 51, 0), (0, 70, 12.5), (-12.5, 51, 0)]))
chamfer.Size = 0.5

doc.recompute()
